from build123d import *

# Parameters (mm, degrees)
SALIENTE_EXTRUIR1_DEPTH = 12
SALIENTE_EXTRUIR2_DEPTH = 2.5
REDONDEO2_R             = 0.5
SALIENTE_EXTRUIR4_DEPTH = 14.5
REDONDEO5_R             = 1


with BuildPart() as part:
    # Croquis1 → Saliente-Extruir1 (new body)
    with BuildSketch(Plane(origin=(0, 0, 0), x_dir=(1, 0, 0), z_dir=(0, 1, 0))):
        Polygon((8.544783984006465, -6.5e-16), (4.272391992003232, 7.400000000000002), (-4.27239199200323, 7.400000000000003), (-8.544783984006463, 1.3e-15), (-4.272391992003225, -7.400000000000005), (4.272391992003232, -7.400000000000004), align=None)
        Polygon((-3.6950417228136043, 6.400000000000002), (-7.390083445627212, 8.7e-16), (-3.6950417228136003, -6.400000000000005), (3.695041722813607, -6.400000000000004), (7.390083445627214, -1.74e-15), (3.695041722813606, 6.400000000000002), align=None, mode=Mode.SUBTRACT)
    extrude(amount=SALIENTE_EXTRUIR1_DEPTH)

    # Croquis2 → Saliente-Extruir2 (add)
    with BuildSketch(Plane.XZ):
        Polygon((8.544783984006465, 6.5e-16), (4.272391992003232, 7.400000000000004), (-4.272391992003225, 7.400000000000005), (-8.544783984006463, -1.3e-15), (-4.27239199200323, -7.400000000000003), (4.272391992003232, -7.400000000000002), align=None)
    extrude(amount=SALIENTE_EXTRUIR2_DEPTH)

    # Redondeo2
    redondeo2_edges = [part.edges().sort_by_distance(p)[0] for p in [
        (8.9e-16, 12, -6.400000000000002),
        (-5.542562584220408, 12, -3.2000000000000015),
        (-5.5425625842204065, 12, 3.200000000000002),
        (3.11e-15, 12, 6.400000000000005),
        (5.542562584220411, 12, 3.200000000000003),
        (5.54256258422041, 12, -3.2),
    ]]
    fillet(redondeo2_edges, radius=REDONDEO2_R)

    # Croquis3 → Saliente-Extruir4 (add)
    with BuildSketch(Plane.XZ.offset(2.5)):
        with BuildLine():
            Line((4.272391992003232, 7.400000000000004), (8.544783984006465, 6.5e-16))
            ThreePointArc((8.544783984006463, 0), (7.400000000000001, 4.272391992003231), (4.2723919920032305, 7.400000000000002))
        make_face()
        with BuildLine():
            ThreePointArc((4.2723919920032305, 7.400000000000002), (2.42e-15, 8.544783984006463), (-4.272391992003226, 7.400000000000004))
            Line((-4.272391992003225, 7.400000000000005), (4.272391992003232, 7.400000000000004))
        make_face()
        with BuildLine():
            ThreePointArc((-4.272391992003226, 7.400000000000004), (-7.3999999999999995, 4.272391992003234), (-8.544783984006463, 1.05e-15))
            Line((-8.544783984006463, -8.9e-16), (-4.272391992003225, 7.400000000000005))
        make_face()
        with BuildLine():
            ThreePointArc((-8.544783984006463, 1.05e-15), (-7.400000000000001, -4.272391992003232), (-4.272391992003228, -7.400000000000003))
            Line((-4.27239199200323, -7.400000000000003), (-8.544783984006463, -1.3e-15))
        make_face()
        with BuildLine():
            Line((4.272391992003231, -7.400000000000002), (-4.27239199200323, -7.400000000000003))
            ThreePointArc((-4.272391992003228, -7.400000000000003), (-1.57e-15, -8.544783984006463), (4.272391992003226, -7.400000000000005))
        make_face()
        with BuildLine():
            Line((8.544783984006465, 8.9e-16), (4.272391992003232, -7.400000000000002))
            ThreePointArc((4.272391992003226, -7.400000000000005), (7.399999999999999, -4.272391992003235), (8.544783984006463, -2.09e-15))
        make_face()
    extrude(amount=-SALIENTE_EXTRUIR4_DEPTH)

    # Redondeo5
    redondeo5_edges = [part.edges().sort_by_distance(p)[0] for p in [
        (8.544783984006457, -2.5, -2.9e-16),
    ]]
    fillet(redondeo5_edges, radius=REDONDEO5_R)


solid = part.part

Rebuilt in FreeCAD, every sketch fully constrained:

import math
import FreeCAD as App
import Part
import Sketcher

V = App.Vector
Q = App.Units.Quantity


def edges_at(feature, points):
    """Names of the edges that pass closest to the given points."""
    edges = feature.Shape.Edges
    near = lambda p: min(range(len(edges)), key=lambda i: edges[i].distToShape(Part.Vertex(*p))[0])
    return sorted({f"Edge{near(p) + 1}" for p in points})

doc = App.newDocument("Part")
params = doc.addObject("Spreadsheet::Sheet", "Params")
for row, (alias, value) in enumerate([
    ("pad1_length", "12 mm"),
    ("pad2_length", "2.5 mm"),
    ("fillet_radius", "0.5 mm"),
    ("pad3_length", "14.5 mm"),
    ("fillet2_radius", "1 mm"),
], start=1):
    params.set(f"A{row}", alias)
    params.set(f"B{row}", "=" + value)
    params.setAlias(f"B{row}", alias)

body = doc.addObject("PartDesign::Body", "Body")

sketch1 = body.newObject("Sketcher::SketchObject", "Sketch")
sketch1.AttachmentSupport = (doc.getObject("XZ_Plane"), [""])
sketch1.MapMode = "FlatFace"
sketch1.addGeometry(Part.LineSegment(V(9, 0, 0), V(4, -7, 0)), False)
sketch1.addGeometry(Part.LineSegment(V(4, -7, 0), V(-4, -7, 0)), False)
sketch1.addGeometry(Part.LineSegment(V(-4, -7, 0), V(-9, 0, 0)), False)
sketch1.addGeometry(Part.LineSegment(V(-9, 0, 0), V(-4, 7, 0)), False)
sketch1.addGeometry(Part.LineSegment(V(-4, 7, 0), V(4, 7, 0)), False)
sketch1.addGeometry(Part.LineSegment(V(4, 7, 0), V(9, 0, 0)), False)
sketch1.addGeometry(Part.LineSegment(V(-7, 0, 0), V(-4, -6, 0)), False)
sketch1.addGeometry(Part.LineSegment(V(-4, -6, 0), V(4, -6, 0)), False)
sketch1.addGeometry(Part.LineSegment(V(4, -6, 0), V(7, 0, 0)), False)
sketch1.addGeometry(Part.LineSegment(V(7, 0, 0), V(4, 6, 0)), False)
sketch1.addGeometry(Part.LineSegment(V(4, 6, 0), V(-4, 6, 0)), False)
sketch1.addGeometry(Part.LineSegment(V(-4, 6, 0), V(-7, 0, 0)), False)
sketch1.addConstraint(Sketcher.Constraint("Coincident", 0, 2, 1, 1))
sketch1.addConstraint(Sketcher.Constraint("Coincident", 1, 2, 2, 1))
sketch1.addConstraint(Sketcher.Constraint("Coincident", 2, 2, 3, 1))
sketch1.addConstraint(Sketcher.Constraint("Coincident", 3, 2, 4, 1))
sketch1.addConstraint(Sketcher.Constraint("Coincident", 4, 2, 5, 1))
sketch1.addConstraint(Sketcher.Constraint("Coincident", 5, 2, 0, 1))
sketch1.addConstraint(Sketcher.Constraint("Coincident", 6, 2, 7, 1))
sketch1.addConstraint(Sketcher.Constraint("Coincident", 7, 2, 8, 1))
sketch1.addConstraint(Sketcher.Constraint("Coincident", 8, 2, 9, 1))
sketch1.addConstraint(Sketcher.Constraint("Coincident", 9, 2, 10, 1))
sketch1.addConstraint(Sketcher.Constraint("Coincident", 10, 2, 11, 1))
sketch1.addConstraint(Sketcher.Constraint("Coincident", 11, 2, 6, 1))
sketch1.addConstraint(Sketcher.Constraint("Horizontal", 1))
sketch1.addConstraint(Sketcher.Constraint("Horizontal", 4))
sketch1.addConstraint(Sketcher.Constraint("Horizontal", 7))
sketch1.addConstraint(Sketcher.Constraint("Horizontal", 10))
sketch1.addConstraint(Sketcher.Constraint("Symmetric", 0, 2, 3, 2, -1, 1))
sketch1.addConstraint(Sketcher.Constraint("Symmetric", 2, 2, 5, 2, -1, 1))
sketch1.addConstraint(Sketcher.Constraint("Symmetric", 6, 2, 9, 2, -1, 1))
sketch1.addConstraint(Sketcher.Constraint("Symmetric", 8, 2, 11, 2, -1, 1))
sketch1.addConstraint(Sketcher.Constraint("PointOnObject", 2, 2, -1))
sketch1.addConstraint(Sketcher.Constraint("PointOnObject", 8, 2, -1))
sketch1.addConstraint(Sketcher.Constraint("Parallel", 2, 5))
sketch1.addConstraint(Sketcher.Constraint("Parallel", 5, 6))
sketch1.addConstraint(Sketcher.Constraint("Parallel", 3, 8))
sketch1.addConstraint(Sketcher.Constraint("Parallel", 8, 11))
sketch1.addConstraint(Sketcher.Constraint("Vertical", 1, 2, 3, 2))
sketch1.addConstraint(Sketcher.Constraint("Angle", 0, Q("-120 deg")))
sketch1.addConstraint(Sketcher.Constraint("DistanceY", 1, 2, 6, 2, 1.0))
sketch1.addConstraint(Sketcher.Constraint("DistanceY", 0, 2, -1, 1, 7.4))
sketch1.addConstraint(Sketcher.Constraint("DistanceX", 8, 2, 5, 2, 1.154701))
sketch1.addConstraint(Sketcher.Constraint("DistanceX", 1, 2, 1, 1, 8.544784))
pad1 = body.newObject("PartDesign::Pad", "Pad")
pad1.Profile = sketch1
pad1.setExpression("Length", "Params.pad1_length")
pad1.Reversed = True

sketch2 = body.newObject("Sketcher::SketchObject", "Sketch001")
sketch2.AttachmentSupport = (doc.getObject("XZ_Plane"), [""])
sketch2.MapMode = "FlatFace"
sketch2.addGeometry(Part.LineSegment(V(9, 0, 0), V(4, 7, 0)), False)
sketch2.addGeometry(Part.LineSegment(V(4, 7, 0), V(-4, 7, 0)), False)
sketch2.addGeometry(Part.LineSegment(V(-4, 7, 0), V(-9, 0, 0)), False)
sketch2.addGeometry(Part.LineSegment(V(-9, 0, 0), V(-4, -7, 0)), False)
sketch2.addGeometry(Part.LineSegment(V(-4, -7, 0), V(4, -7, 0)), False)
sketch2.addGeometry(Part.LineSegment(V(4, -7, 0), V(9, 0, 0)), False)
sketch2.addConstraint(Sketcher.Constraint("Coincident", 0, 2, 1, 1))
sketch2.addConstraint(Sketcher.Constraint("Coincident", 1, 2, 2, 1))
sketch2.addConstraint(Sketcher.Constraint("Coincident", 2, 2, 3, 1))
sketch2.addConstraint(Sketcher.Constraint("Coincident", 3, 2, 4, 1))
sketch2.addConstraint(Sketcher.Constraint("Coincident", 4, 2, 5, 1))
sketch2.addConstraint(Sketcher.Constraint("Coincident", 5, 2, 0, 1))
sketch2.addConstraint(Sketcher.Constraint("Horizontal", 1))
sketch2.addConstraint(Sketcher.Constraint("Horizontal", 4))
sketch2.addConstraint(Sketcher.Constraint("Symmetric", 0, 2, 3, 2, -1, 1))
sketch2.addConstraint(Sketcher.Constraint("Symmetric", 2, 2, 5, 2, -1, 1))
sketch2.addConstraint(Sketcher.Constraint("PointOnObject", 2, 2, -1))
sketch2.addConstraint(Sketcher.Constraint("Parallel", 2, 5))
sketch2.addConstraint(Sketcher.Constraint("Vertical", 1, 2, 3, 2))
sketch2.addConstraint(Sketcher.Constraint("Angle", 0, Q("120 deg")))
sketch2.addConstraint(Sketcher.Constraint("DistanceY", -1, 1, 0, 2, 7.4))
sketch2.addConstraint(Sketcher.Constraint("DistanceX", 1, 2, 1, 1, 8.544784))
pad2 = body.newObject("PartDesign::Pad", "Pad001")
pad2.Profile = sketch2
pad2.setExpression("Length", "Params.pad2_length")
doc.recompute()

fillet = body.newObject("PartDesign::Fillet", "Fillet")
fillet.Base = (pad2, edges_at(pad2, [
    (0, 12, -6.4),
    (-5.543, 12, -3.2),
    (-5.543, 12, 3.2),
    (0, 12, 6.4),
    (5.543, 12, 3.2),
    (5.543, 12, -3.2),
]))
fillet.setExpression("Radius", "Params.fillet_radius")

sketch3 = body.newObject("Sketcher::SketchObject", "Sketch002")
sketch3.AttachmentSupport = (doc.getObject("XZ_Plane"), [""])
sketch3.MapMode = "FlatFace"
sketch3.AttachmentOffset = App.Placement(V(0, 0, 2.5), App.Rotation())
sketch3.addGeometry(Part.LineSegment(V(4, 7, 0), V(9, 0, 0)), False)
sketch3.addGeometry(Part.ArcOfCircle(Part.Circle(V(0, 0, 0), V(0, 0, 1), 9), math.radians(0), math.radians(60)), False)
sketch3.addGeometry(Part.ArcOfCircle(Part.Circle(V(0, 0, 0), V(0, 0, 1), 9), math.radians(60), math.radians(120)), False)
sketch3.addGeometry(Part.LineSegment(V(-4, 7, 0), V(4, 7, 0)), False)
sketch3.addGeometry(Part.ArcOfCircle(Part.Circle(V(0, 0, 0), V(0, 0, 1), 9), math.radians(120), math.radians(180)), False)
sketch3.addGeometry(Part.LineSegment(V(-9, 0, 0), V(-4, 7, 0)), False)
sketch3.addGeometry(Part.ArcOfCircle(Part.Circle(V(0, 0, 0), V(0, 0, 1), 9), math.radians(180), math.radians(240)), False)
sketch3.addGeometry(Part.LineSegment(V(-4, -7, 0), V(-9, 0, 0)), False)
sketch3.addGeometry(Part.LineSegment(V(4, -7, 0), V(-4, -7, 0)), False)
sketch3.addGeometry(Part.ArcOfCircle(Part.Circle(V(0, 0, 0), V(0, 0, 1), 9), math.radians(-120), math.radians(-60)), False)
sketch3.addGeometry(Part.LineSegment(V(9, 0, 0), V(4, -7, 0)), False)
sketch3.addGeometry(Part.ArcOfCircle(Part.Circle(V(0, 0, 0), V(0, 0, 1), 9), math.radians(-60), math.radians(0)), False)
sketch3.addConstraint(Sketcher.Constraint("Coincident", 0, 1, 1, 2))
sketch3.addConstraint(Sketcher.Constraint("Coincident", 1, 1, 0, 2))
sketch3.addConstraint(Sketcher.Constraint("Coincident", 2, 1, 3, 2))
sketch3.addConstraint(Sketcher.Constraint("Coincident", 3, 1, 2, 2))
sketch3.addConstraint(Sketcher.Constraint("Coincident", 4, 1, 5, 2))
sketch3.addConstraint(Sketcher.Constraint("Coincident", 5, 1, 4, 2))
sketch3.addConstraint(Sketcher.Constraint("Coincident", 6, 1, 7, 2))
sketch3.addConstraint(Sketcher.Constraint("Coincident", 7, 1, 6, 2))
sketch3.addConstraint(Sketcher.Constraint("Coincident", 8, 1, 9, 2))
sketch3.addConstraint(Sketcher.Constraint("Coincident", 9, 1, 8, 2))
sketch3.addConstraint(Sketcher.Constraint("Coincident", 10, 1, 11, 2))
sketch3.addConstraint(Sketcher.Constraint("Coincident", 11, 1, 10, 2))
sketch3.addConstraint(Sketcher.Constraint("Horizontal", 3))
sketch3.addConstraint(Sketcher.Constraint("Horizontal", 8))
sketch3.addConstraint(Sketcher.Constraint("Coincident", 1, 3, -1, 1))
sketch3.addConstraint(Sketcher.Constraint("Coincident", 2, 3, -1, 1))
sketch3.addConstraint(Sketcher.Constraint("Coincident", 4, 3, -1, 1))
sketch3.addConstraint(Sketcher.Constraint("Coincident", 6, 3, -1, 1))
sketch3.addConstraint(Sketcher.Constraint("Coincident", 9, 3, -1, 1))
sketch3.addConstraint(Sketcher.Constraint("Coincident", 11, 3, -1, 1))
sketch3.addConstraint(Sketcher.Constraint("Coincident", 2, 1, 0, 1))
sketch3.addConstraint(Sketcher.Constraint("Coincident", 4, 1, 3, 1))
sketch3.addConstraint(Sketcher.Constraint("Coincident", 6, 1, 5, 1))
sketch3.addConstraint(Sketcher.Constraint("Coincident", 9, 1, 7, 1))
sketch3.addConstraint(Sketcher.Constraint("Coincident", 10, 1, 1, 1))
sketch3.addConstraint(Sketcher.Constraint("PointOnObject", 1, 1, -1))
sketch3.addConstraint(Sketcher.Constraint("PointOnObject", 5, 1, -1))
sketch3.addConstraint(Sketcher.Constraint("Parallel", 0, 7))
sketch3.addConstraint(Sketcher.Constraint("Parallel", 5, 10))
sketch3.addConstraint(Sketcher.Constraint("Angle", 0, Q("-60 deg")))
sketch3.addConstraint(Sketcher.Constraint("DistanceY", -1, 1, 0, 1, 7.4))
pad3 = body.newObject("PartDesign::Pad", "Pad002")
pad3.Profile = sketch3
pad3.setExpression("Length", "Params.pad3_length")
pad3.Reversed = True
doc.recompute()

fillet2 = body.newObject("PartDesign::Fillet", "Fillet001")
fillet2.Base = (pad3, edges_at(pad3, [(4.272, -2.5, 7.4)]))
fillet2.setExpression("Radius", "Params.fillet2_radius")

doc.recompute()
